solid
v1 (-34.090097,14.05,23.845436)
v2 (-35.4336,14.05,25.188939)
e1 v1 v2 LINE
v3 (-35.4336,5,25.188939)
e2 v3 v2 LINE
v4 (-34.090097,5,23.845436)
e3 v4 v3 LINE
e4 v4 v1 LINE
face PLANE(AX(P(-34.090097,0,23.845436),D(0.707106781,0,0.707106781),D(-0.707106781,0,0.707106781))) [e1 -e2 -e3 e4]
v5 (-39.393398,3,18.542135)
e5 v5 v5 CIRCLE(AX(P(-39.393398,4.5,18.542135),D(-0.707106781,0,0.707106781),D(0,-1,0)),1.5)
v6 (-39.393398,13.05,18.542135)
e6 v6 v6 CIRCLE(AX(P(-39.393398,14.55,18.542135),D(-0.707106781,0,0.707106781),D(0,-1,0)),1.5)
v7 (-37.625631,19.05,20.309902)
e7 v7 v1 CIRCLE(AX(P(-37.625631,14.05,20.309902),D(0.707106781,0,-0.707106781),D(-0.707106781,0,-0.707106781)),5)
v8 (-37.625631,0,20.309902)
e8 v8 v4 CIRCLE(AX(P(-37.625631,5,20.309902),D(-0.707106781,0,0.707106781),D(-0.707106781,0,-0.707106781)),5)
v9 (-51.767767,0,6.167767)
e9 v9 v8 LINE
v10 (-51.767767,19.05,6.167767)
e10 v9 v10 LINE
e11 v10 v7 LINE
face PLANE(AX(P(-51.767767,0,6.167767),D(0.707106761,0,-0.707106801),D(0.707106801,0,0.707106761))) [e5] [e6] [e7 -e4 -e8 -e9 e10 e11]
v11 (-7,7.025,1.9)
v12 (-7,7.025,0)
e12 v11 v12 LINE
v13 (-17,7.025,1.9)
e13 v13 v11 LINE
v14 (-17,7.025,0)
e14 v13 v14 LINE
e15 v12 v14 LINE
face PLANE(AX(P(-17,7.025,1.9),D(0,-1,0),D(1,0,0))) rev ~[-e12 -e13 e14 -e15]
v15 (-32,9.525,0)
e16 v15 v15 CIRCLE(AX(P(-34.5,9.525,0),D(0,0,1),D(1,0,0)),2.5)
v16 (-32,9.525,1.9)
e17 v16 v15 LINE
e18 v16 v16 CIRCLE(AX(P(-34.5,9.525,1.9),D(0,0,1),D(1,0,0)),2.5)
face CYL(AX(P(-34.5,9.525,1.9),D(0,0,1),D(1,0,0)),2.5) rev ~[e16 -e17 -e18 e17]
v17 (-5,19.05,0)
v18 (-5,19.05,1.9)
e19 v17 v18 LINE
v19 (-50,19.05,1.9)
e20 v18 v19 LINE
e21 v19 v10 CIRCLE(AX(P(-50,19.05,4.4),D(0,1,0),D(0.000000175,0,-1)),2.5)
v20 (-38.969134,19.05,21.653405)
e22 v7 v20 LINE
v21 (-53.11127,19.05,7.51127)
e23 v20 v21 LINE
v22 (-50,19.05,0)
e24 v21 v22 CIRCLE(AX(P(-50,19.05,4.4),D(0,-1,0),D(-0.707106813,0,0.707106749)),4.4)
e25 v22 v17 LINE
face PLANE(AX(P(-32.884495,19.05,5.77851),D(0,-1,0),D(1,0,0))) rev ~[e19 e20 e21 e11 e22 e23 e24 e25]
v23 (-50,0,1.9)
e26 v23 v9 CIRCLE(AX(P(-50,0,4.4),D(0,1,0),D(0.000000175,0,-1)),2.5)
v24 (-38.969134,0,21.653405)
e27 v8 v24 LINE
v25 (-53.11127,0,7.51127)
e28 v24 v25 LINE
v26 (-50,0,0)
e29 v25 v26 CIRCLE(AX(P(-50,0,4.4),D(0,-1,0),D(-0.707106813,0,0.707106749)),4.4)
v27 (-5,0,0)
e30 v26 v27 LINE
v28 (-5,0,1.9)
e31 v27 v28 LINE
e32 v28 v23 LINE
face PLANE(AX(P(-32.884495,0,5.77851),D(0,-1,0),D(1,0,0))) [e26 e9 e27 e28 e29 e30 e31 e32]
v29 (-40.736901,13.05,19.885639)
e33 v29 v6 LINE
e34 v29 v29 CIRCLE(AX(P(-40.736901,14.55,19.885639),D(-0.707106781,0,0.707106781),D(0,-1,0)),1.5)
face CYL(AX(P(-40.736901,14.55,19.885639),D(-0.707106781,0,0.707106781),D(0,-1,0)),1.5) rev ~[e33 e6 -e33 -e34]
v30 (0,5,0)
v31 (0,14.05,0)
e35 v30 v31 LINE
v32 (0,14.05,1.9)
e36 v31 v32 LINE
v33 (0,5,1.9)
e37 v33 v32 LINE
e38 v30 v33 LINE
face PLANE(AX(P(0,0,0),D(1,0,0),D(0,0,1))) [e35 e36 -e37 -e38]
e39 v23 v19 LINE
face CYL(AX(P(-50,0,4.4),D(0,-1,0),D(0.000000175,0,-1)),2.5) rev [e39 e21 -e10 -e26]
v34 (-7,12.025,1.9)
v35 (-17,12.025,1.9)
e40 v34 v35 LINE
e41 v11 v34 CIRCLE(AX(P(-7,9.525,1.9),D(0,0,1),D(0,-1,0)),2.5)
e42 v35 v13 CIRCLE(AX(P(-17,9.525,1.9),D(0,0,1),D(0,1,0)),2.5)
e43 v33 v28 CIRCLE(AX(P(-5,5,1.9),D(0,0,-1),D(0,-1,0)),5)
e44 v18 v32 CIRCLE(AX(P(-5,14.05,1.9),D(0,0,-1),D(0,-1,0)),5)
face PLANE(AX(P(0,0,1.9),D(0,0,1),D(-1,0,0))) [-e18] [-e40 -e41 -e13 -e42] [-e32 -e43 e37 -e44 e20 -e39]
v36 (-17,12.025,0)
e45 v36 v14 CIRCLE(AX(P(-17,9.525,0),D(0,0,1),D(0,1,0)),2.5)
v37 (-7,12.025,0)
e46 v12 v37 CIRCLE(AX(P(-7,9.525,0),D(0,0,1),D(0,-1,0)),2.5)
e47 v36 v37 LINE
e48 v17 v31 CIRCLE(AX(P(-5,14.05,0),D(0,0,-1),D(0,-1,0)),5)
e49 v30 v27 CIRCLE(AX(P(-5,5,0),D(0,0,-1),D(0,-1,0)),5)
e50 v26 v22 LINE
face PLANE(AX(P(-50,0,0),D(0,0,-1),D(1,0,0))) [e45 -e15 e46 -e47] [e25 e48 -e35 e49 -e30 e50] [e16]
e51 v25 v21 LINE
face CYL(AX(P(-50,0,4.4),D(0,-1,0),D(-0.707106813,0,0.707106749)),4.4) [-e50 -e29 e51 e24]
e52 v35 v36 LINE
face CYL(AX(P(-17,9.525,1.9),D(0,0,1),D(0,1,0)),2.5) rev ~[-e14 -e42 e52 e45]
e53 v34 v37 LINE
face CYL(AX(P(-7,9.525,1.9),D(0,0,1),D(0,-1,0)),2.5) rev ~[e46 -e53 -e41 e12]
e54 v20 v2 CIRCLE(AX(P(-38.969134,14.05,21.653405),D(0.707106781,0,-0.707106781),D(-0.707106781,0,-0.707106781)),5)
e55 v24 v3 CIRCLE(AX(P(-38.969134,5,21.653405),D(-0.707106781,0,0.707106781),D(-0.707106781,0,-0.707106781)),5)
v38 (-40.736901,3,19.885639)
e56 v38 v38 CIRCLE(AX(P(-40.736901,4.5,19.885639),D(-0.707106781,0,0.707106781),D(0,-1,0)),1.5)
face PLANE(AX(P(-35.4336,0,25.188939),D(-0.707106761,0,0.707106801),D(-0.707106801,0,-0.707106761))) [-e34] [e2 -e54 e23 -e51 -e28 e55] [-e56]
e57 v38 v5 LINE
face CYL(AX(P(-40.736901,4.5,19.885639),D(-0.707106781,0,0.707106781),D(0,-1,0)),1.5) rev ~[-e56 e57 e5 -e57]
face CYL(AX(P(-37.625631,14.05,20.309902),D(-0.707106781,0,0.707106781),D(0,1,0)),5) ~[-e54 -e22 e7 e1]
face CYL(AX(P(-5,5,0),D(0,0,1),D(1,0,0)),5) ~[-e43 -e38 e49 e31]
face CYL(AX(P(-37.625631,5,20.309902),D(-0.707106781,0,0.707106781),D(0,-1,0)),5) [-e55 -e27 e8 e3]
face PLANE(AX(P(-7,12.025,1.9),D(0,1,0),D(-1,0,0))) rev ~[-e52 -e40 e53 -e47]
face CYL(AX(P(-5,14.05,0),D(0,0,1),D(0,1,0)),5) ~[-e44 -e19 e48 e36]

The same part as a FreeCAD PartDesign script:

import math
import FreeCAD as App
import Part
import Sketcher

V = App.Vector
Q = App.Units.Quantity


def edges_at(feature, points):
    """Names of the edges that pass closest to the given points."""
    edges = feature.Shape.Edges
    near = lambda p: min(range(len(edges)), key=lambda i: edges[i].distToShape(Part.Vertex(*p))[0])
    return sorted({f"Edge{near(p) + 1}" for p in points})

doc = App.newDocument("Part")
params = doc.addObject("Spreadsheet::Sheet", "Params")
for row, (alias, value) in enumerate([
    ("sketch1_radius", "2.5 mm"),
    ("sketch1_radius2", "4.4 mm"),
    ("sketch1_width", "50 mm"),
    ("sketch1_length", "25 mm"),
    ("pad1_length", "19.05 mm"),
    ("sketch2_diameter", "5 mm"),
    ("sketch2_width", "10 mm"),
    ("pocket1_length", "25 mm"),
    ("sketch3_diameter", "3 mm"),
    ("pocket2_length", "7.9 mm"),
    ("fillet_radius", "5 mm"),
    ("fillet2_radius", "5 mm"),
], start=1):
    params.set(f"A{row}", alias)
    params.set(f"B{row}", "=" + value)
    params.setAlias(f"B{row}", alias)

body = doc.addObject("PartDesign::Body", "Body")

# Sketch on XZ plane
sketch1 = body.newObject("Sketcher::SketchObject", "Sketch")
sketch1.AttachmentSupport = (doc.getObject("XZ_Plane"), [""])
sketch1.MapMode = "FlatFace"
sketch1.addGeometry(Part.LineSegment(V(-50, 0, 0), V(0, 0, 0)), False)
sketch1.addGeometry(Part.LineSegment(V(0, 0, 0), V(0, 1.9, 0)), False)
sketch1.addGeometry(Part.LineSegment(V(0, 1.9, 0), V(-50, 1.9, 0)), False)
sketch1.addGeometry(Part.ArcOfCircle(Part.Circle(V(-50, 4.4, 0), V(0, 0, 1), 2.5), math.radians(135), math.radians(270)), False)
sketch1.addGeometry(Part.LineSegment(V(-51.8, 6.2, 0), V(-34.1, 23.8, 0)), False)
sketch1.addGeometry(Part.LineSegment(V(-34.1, 23.8, 0), V(-35.4, 25.2, 0)), False)
sketch1.addGeometry(Part.LineSegment(V(-35.4, 25.2, 0), V(-53.1, 7.5, 0)), False)
sketch1.addGeometry(Part.ArcOfCircle(Part.Circle(V(-50, 4.4, 0), V(0, 0, 1), 4.4), math.radians(135), math.radians(270)), False)
sketch1.addConstraint(Sketcher.Constraint("Coincident", 0, 2, 1, 1))
sketch1.addConstraint(Sketcher.Constraint("Coincident", 1, 2, 2, 1))
sketch1.addConstraint(Sketcher.Constraint("Tangent", 2, 2, 3, 2))
sketch1.addConstraint(Sketcher.Constraint("Tangent", 3, 1, 4, 1))
sketch1.addConstraint(Sketcher.Constraint("Coincident", 4, 2, 5, 1))
sketch1.addConstraint(Sketcher.Constraint("Coincident", 5, 2, 6, 1))
sketch1.addConstraint(Sketcher.Constraint("Tangent", 6, 2, 7, 1))
sketch1.addConstraint(Sketcher.Constraint("Tangent", 7, 2, 0, 1))
sketch1.addConstraint(Sketcher.Constraint("Horizontal", 0))
sketch1.addConstraint(Sketcher.Constraint("Vertical", 1))
sketch1.addConstraint(Sketcher.Constraint("Horizontal", 2))
sketch1.addConstraint(Sketcher.Constraint("Coincident", 0, 2, -1, 1))
sketch1.addConstraint(Sketcher.Constraint("Coincident", 7, 3, 3, 3))
sketch1.addConstraint(Sketcher.Constraint("Perpendicular", 4, 5))
sketch1.addConstraint(Sketcher.Constraint("Perpendicular", 5, 6))
sketch1.addConstraint(Sketcher.Constraint("Radius", 3, Q("2.5 mm")))
sketch1.addConstraint(Sketcher.Constraint("Radius", 7, Q("4.4 mm")))
sketch1.addConstraint(Sketcher.Constraint("DistanceX", 0, 1, 0, 2, Q("50 mm")))
sketch1.addConstraint(Sketcher.Constraint("Angle", 4, Q("44.999998 deg")))
sketch1.addConstraint(Sketcher.Constraint("Distance", 4, Q("25 mm")))
sketch1.setExpression("Constraints[15]", "Params.sketch1_radius")
sketch1.setExpression("Constraints[16]", "Params.sketch1_radius2")
sketch1.setExpression("Constraints[17]", "Params.sketch1_width")
sketch1.setExpression("Constraints[19]", "Params.sketch1_length")
pad1 = body.newObject("PartDesign::Pad", "Pad")
pad1.Profile = sketch1
pad1.setExpression("Length", "Params.pad1_length")
pad1.Reversed = True

# Sketch on XY plane
sketch2 = body.newObject("Sketcher::SketchObject", "Sketch001")
sketch2.AttachmentSupport = (doc.getObject("XY_Plane"), [""])
sketch2.MapMode = "FlatFace"
sketch2.AttachmentOffset = App.Placement(V(0, 0, 1.9), App.Rotation())
sketch2.addGeometry(Part.LineSegment(V(-17, 7, 0), V(-7, 7, 0)), False)
sketch2.addGeometry(Part.ArcOfCircle(Part.Circle(V(-7, 9.5, 0), V(0, 0, 1), 2.5), math.radians(-90), math.radians(90)), False)
sketch2.addGeometry(Part.LineSegment(V(-7, 12, 0), V(-17, 12, 0)), False)
sketch2.addGeometry(Part.ArcOfCircle(Part.Circle(V(-17, 9.5, 0), V(0, 0, 1), 2.5), math.radians(90), math.radians(270)), False)
sketch2.addGeometry(Part.Circle(V(-34.5, 9.5, 0), V(0, 0, 1), 2.5), False)
sketch2.addConstraint(Sketcher.Constraint("Tangent", 0, 2, 1, 1))
sketch2.addConstraint(Sketcher.Constraint("Tangent", 1, 2, 2, 1))
sketch2.addConstraint(Sketcher.Constraint("Tangent", 2, 2, 3, 1))
sketch2.addConstraint(Sketcher.Constraint("Tangent", 3, 2, 0, 1))
sketch2.addConstraint(Sketcher.Constraint("Horizontal", 0))
sketch2.addConstraint(Sketcher.Constraint("Horizontal", 2))
sketch2.addConstraint(Sketcher.Constraint("Equal", 3, 4))
sketch2.addConstraint(Sketcher.Constraint("Horizontal", 3, 3, 4, 3))
sketch2.addConstraint(Sketcher.Constraint("Diameter", 4, Q("5 mm")))
sketch2.addConstraint(Sketcher.Constraint("DistanceX", 0, 1, 0, 2, Q("10 mm")))
sketch2.addConstraint(Sketcher.Constraint("DistanceX", 1, 3, -1, 1, Q("7 mm")))
sketch2.addConstraint(Sketcher.Constraint("DistanceX", 4, 3, -1, 1, Q("34.5 mm")))
sketch2.addConstraint(Sketcher.Constraint("DistanceY", -1, 1, 1, 3, Q("9.525 mm")))
sketch2.setExpression("Constraints[8]", "Params.sketch2_diameter")
sketch2.setExpression("Constraints[9]", "Params.sketch2_width")
pocket1 = body.newObject("PartDesign::Pocket", "Pocket")
pocket1.Profile = sketch2
pocket1.setExpression("Length", "Params.pocket1_length")

# Sketch on an angled plane
sketch3 = body.newObject("Sketcher::SketchObject", "Sketch002")
sketch3.Placement = App.Placement(V(-30.31127, 0, 30.31127), App.Rotation(V(0, -1, 0), V(0.707106781, 0, 0.707106781), V(-0.707106781, 0, 0.707106781), "ZXY"))
sketch3.addGeometry(Part.Circle(V(-4.5, -14.7, 0), V(0, 0, 1), 1.5), False)
sketch3.addGeometry(Part.Circle(V(-14.6, -14.7, 0), V(0, 0, 1), 1.5), False)
sketch3.addConstraint(Sketcher.Constraint("Equal", 0, 1))
sketch3.addConstraint(Sketcher.Constraint("Horizontal", 0, 3, 1, 3))
sketch3.addConstraint(Sketcher.Constraint("Diameter", 0, Q("3 mm")))
sketch3.addConstraint(Sketcher.Constraint("DistanceX", 0, 3, -1, 1, Q("4.5 mm")))
sketch3.addConstraint(Sketcher.Constraint("DistanceX", 1, 3, -1, 1, Q("14.55 mm")))
sketch3.addConstraint(Sketcher.Constraint("DistanceY", 0, 3, -1, 1, Q("14.744069 mm")))
sketch3.setExpression("Constraints[2]", "Params.sketch3_diameter")
pocket2 = body.newObject("PartDesign::Pocket", "Pocket001")
pocket2.Profile = sketch3
pocket2.setExpression("Length", "Params.pocket2_length")
doc.recompute()

fillet = body.newObject("PartDesign::Fillet", "Fillet")
fillet.Base = (pocket2, edges_at(pocket2, [(0, 19.05, 0.95)]))
fillet.setExpression("Radius", "Params.fillet_radius")
doc.recompute()

fillet2 = body.newObject("PartDesign::Fillet", "Fillet001")
fillet2.Base = (fillet, edges_at(fillet, [(0, 0, 0.95), (-34.762, 0, 24.517), (-34.762, 19.05, 24.517)]))
fillet2.setExpression("Radius", "Params.fillet2_radius")

doc.recompute()
